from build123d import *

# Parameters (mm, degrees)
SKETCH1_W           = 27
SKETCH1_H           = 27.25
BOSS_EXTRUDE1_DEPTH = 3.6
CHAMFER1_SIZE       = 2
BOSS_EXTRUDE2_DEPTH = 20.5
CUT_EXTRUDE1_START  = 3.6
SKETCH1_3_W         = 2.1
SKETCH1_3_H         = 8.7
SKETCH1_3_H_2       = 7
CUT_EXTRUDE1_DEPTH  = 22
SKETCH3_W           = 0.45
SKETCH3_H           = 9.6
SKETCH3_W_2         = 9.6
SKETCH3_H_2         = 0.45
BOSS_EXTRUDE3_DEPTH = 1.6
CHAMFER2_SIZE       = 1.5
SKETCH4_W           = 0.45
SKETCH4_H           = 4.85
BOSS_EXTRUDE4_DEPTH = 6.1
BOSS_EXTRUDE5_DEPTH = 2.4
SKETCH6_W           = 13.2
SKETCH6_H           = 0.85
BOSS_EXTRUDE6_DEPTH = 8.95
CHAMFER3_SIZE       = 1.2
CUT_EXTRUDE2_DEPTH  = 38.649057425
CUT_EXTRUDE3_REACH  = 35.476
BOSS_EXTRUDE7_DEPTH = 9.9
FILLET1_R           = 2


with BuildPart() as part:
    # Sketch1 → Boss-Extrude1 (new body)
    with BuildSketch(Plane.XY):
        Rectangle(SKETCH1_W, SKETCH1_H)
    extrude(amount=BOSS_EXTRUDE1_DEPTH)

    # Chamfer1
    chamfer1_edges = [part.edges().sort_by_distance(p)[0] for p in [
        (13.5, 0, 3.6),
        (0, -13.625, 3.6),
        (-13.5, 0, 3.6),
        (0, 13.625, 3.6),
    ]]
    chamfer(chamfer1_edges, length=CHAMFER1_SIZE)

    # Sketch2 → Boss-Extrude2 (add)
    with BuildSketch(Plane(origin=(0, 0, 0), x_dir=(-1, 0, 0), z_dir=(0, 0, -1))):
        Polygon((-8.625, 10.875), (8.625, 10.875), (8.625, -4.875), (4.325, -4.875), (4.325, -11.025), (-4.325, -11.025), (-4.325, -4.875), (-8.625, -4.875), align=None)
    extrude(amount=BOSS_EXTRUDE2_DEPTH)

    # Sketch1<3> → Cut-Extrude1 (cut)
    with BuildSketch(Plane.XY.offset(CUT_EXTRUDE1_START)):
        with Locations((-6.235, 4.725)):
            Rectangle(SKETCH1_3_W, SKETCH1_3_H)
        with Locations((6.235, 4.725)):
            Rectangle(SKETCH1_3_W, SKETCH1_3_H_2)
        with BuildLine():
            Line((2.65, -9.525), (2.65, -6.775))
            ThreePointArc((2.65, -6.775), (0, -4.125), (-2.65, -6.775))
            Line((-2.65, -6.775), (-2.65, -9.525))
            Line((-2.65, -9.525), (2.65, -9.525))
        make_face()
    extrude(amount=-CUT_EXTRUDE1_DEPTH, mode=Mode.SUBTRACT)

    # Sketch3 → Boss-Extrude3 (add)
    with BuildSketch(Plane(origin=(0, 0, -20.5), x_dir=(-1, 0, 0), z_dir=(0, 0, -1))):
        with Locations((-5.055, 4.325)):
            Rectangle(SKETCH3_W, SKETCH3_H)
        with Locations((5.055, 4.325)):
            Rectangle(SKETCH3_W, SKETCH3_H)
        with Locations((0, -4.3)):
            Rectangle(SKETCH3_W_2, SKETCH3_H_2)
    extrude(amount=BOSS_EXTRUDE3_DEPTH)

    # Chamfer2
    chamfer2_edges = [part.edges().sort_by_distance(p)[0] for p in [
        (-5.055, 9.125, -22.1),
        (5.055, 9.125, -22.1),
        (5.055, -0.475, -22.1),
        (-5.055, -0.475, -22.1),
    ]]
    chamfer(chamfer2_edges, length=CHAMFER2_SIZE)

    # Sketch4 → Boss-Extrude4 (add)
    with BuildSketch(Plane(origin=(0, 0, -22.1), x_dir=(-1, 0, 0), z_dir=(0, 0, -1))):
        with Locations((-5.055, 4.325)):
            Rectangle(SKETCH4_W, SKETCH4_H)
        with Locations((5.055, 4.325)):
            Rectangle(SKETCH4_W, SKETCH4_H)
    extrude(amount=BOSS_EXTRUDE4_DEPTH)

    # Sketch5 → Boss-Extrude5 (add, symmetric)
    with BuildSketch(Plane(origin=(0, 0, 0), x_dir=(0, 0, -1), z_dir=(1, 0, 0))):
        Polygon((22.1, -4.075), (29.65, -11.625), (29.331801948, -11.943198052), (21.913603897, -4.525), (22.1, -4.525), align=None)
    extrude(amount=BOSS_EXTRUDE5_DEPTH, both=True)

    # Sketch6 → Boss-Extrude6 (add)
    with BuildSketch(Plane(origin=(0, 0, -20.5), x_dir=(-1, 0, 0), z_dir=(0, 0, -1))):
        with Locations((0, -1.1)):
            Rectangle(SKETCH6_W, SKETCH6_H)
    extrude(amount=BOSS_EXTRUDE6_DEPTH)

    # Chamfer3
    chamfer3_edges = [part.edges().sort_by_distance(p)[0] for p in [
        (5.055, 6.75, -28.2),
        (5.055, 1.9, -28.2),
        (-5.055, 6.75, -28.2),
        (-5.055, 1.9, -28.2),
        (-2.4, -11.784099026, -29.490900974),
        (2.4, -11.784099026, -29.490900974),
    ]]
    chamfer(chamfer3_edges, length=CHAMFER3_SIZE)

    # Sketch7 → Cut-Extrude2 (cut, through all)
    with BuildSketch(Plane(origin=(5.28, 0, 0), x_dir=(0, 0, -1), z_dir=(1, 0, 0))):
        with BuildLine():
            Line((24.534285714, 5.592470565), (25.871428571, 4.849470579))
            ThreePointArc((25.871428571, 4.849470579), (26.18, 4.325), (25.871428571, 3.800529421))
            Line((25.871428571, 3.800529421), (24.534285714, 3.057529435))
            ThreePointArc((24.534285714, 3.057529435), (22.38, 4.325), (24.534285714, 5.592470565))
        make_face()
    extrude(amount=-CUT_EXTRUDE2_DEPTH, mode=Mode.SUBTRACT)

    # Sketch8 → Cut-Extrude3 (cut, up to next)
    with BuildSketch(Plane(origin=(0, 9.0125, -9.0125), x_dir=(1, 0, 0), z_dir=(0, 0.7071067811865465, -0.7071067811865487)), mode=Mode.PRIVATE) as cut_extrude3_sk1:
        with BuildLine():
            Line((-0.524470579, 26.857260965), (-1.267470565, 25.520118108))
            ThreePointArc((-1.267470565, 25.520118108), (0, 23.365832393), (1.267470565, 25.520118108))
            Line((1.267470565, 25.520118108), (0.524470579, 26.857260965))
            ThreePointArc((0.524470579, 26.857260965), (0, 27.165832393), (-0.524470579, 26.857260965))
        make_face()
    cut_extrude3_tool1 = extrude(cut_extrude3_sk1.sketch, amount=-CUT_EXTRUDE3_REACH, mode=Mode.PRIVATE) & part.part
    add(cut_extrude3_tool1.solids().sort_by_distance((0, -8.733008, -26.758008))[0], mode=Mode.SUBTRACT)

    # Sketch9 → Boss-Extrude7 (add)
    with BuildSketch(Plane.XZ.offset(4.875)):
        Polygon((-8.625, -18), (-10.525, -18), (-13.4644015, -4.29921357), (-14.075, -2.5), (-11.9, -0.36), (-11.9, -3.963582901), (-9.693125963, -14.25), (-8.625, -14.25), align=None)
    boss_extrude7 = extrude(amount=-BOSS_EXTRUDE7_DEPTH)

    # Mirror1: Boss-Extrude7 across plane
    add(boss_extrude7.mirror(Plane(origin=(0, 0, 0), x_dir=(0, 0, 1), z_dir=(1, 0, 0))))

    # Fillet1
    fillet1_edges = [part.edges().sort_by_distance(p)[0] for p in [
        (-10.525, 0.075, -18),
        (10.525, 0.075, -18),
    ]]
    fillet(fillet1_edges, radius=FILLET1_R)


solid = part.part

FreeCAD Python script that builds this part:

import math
import FreeCAD as App
import Part
import Sketcher
Q = App.Units.Quantity


def edges_at(feature, points):
    """Names of the edges that pass closest to the given points."""
    edges = feature.Shape.Edges
    near = lambda p: min(range(len(edges)), key=lambda i: edges[i].distToShape(Part.Vertex(*p))[0])
    return sorted({f"Edge{near(p) + 1}" for p in points})


def add_polygon(sketch, points):
    """Adds a closed chain of lines whose ends are joined by coincident constraints."""
    first, n = sketch.GeometryCount, len(points)
    for a, b in zip(points, points[1:] + points[:1]):
        sketch.addGeometry(Part.LineSegment(App.Vector(*a, 0), App.Vector(*b, 0)), False)
    for i in range(n):
        sketch.addConstraint(Sketcher.Constraint("Coincident", first + i, 2, first + (i + 1) % n, 1))

doc = App.newDocument("Part")
body = doc.addObject("PartDesign::Body", "Body")

sketch1 = body.newObject("Sketcher::SketchObject", "Sketch")
sketch1.AttachmentSupport = (doc.getObject("XY_Plane"), [""])
sketch1.MapMode = "FlatFace"
add_polygon(sketch1, [(-13.5, 13.625), (-13.5, -13.625), (13.5, -13.625), (13.5, 13.625)])
sketch1.addConstraint([
    Sketcher.Constraint("Vertical", 0),
    Sketcher.Constraint("Horizontal", 1),
    Sketcher.Constraint("Vertical", 2),
    Sketcher.Constraint("Horizontal", 3),
    Sketcher.Constraint("Symmetric", 0, 2, 2, 2, -1, 1),
    Sketcher.Constraint("DistanceX", 1, 1, 1, 2, 27.0),
    Sketcher.Constraint("DistanceY", 0, 2, 0, 1, 27.25),
])
pad1 = body.newObject("PartDesign::Pad", "Pad")
pad1.Profile = sketch1
pad1.Length = 3.6
doc.recompute()

chamfer = body.newObject("PartDesign::Chamfer", "Chamfer")
chamfer.Base = (pad1, edges_at(pad1, [
    (13.5, 0, 3.6),
    (0, -13.625, 3.6),
    (-13.5, 0, 3.6),
    (0, 13.625, 3.6),
]))
chamfer.Size = 2

sketch2 = body.newObject("Sketcher::SketchObject", "Sketch001")
sketch2.AttachmentSupport = (doc.getObject("XY_Plane"), [""])
sketch2.MapMode = "FlatFace"
add_polygon(sketch2, [(-8.625, 10.875), (8.625, 10.875), (8.625, -4.875), (4.325, -4.875), (4.325, -11.025), (-4.325, -11.025), (-4.325, -4.875), (-8.625, -4.875)])
sketch2.addConstraint([
    Sketcher.Constraint("Horizontal", 0),
    Sketcher.Constraint("Vertical", 1),
    Sketcher.Constraint("Horizontal", 2),
    Sketcher.Constraint("Vertical", 3),
    Sketcher.Constraint("Horizontal", 4),
    Sketcher.Constraint("Vertical", 5),
    Sketcher.Constraint("Horizontal", 6),
    Sketcher.Constraint("Vertical", 7),
    Sketcher.Constraint("Symmetric", 2, 2, 5, 2, -2),
    Sketcher.Constraint("Equal", 2, 6),
    Sketcher.Constraint("DistanceX", 2, 2, 2, 1, 4.3),
    Sketcher.Constraint("DistanceX", 0, 1, 0, 2, 17.25),
    Sketcher.Constraint("DistanceY", 1, 2, 1, 1, 15.75),
    Sketcher.Constraint("DistanceY", 3, 2, 3, 1, 6.15),
    Sketcher.Constraint("DistanceY", -1, 1, 0, 2, 10.875),
])
pad2 = body.newObject("PartDesign::Pad", "Pad001")
pad2.Profile = sketch2
pad2.Length = 20.5
pad2.Reversed = True

sketch3 = body.newObject("Sketcher::SketchObject", "Sketch002")
sketch3.AttachmentSupport = (doc.getObject("XY_Plane"), [""])
sketch3.MapMode = "FlatFace"
sketch3.AttachmentOffset = App.Placement(App.Vector(0, 0, 3.6), App.Rotation())
add_polygon(sketch3, [(-7.285, 9.075), (-7.285, 0.375), (-5.185, 0.375), (-5.185, 9.075)])
add_polygon(sketch3, [(5.185, 8.225), (5.185, 1.225), (7.285, 1.225), (7.285, 8.225)])
sketch3.addGeometry(Part.LineSegment(App.Vector(2.65, -9.525, 0), App.Vector(2.65, -6.775, 0)), False)
sketch3.addGeometry(Part.ArcOfCircle(Part.Circle(App.Vector(0, -6.775, 0), App.Vector(0, 0, 1), 2.65), math.radians(0), math.radians(180)), False)
sketch3.addGeometry(Part.LineSegment(App.Vector(-2.65, -6.775, 0), App.Vector(-2.65, -9.525, 0)), False)
sketch3.addGeometry(Part.LineSegment(App.Vector(-2.65, -9.525, 0), App.Vector(2.65, -9.525, 0)), False)
sketch3.addConstraint([
    Sketcher.Constraint("Tangent", 8, 2, 9, 1),
    Sketcher.Constraint("Tangent", 9, 2, 10, 1),
    Sketcher.Constraint("Coincident", 10, 2, 11, 1),
    Sketcher.Constraint("Coincident", 11, 2, 8, 1),
    Sketcher.Constraint("Vertical", 0),
    Sketcher.Constraint("Horizontal", 1),
    Sketcher.Constraint("Vertical", 2),
    Sketcher.Constraint("Horizontal", 3),
    Sketcher.Constraint("Vertical", 4),
    Sketcher.Constraint("Horizontal", 5),
    Sketcher.Constraint("Vertical", 6),
    Sketcher.Constraint("Horizontal", 7),
    Sketcher.Constraint("Vertical", 8),
    Sketcher.Constraint("Vertical", 10),
    Sketcher.Constraint("Horizontal", 11),
    Sketcher.Constraint("PointOnObject", 9, 3, -2),
    Sketcher.Constraint("Equal", 3, 5),
    Sketcher.Constraint("DistanceY", 4, 2, 4, 1, 7.0),
    Sketcher.Constraint("Radius", 9, 2.65),
    Sketcher.Constraint("DistanceX", 1, 1, 1, 2, 2.1),
    Sketcher.Constraint("DistanceY", 0, 2, 0, 1, 8.7),
    Sketcher.Constraint("DistanceY", 9, 3, 4, 2, 8.0),
    Sketcher.Constraint("DistanceY", 8, 1, 8, 2, 2.75),
    Sketcher.Constraint("DistanceY", 10, 2, 1, 2, 9.9),
    Sketcher.Constraint("DistanceX", 1, 2, 4, 2, 10.37),
    Sketcher.Constraint("DistanceY", 9, 3, -1, 1, 6.775),
    Sketcher.Constraint("DistanceX", 0, 2, -1, 1, 7.285),
])
pocket1 = body.newObject("PartDesign::Pocket", "Pocket")
pocket1.Profile = sketch3
pocket1.Length = 22

sketch4 = body.newObject("Sketcher::SketchObject", "Sketch003")
sketch4.AttachmentSupport = (doc.getObject("XY_Plane"), [""])
sketch4.MapMode = "FlatFace"
sketch4.AttachmentOffset = App.Placement(App.Vector(0, 0, -20.5), App.Rotation())
add_polygon(sketch4, [(5.28, 9.125), (5.28, -0.475), (4.83, -0.475), (4.83, 9.125)])
add_polygon(sketch4, [(-4.83, 9.125), (-4.83, -0.475), (-5.28, -0.475), (-5.28, 9.125)])
add_polygon(sketch4, [(4.8, -4.075), (4.8, -4.525), (-4.8, -4.525), (-4.8, -4.075)])
sketch4.addConstraint([
    Sketcher.Constraint("Vertical", 0),
    Sketcher.Constraint("Horizontal", 1),
    Sketcher.Constraint("Vertical", 2),
    Sketcher.Constraint("Horizontal", 3),
    Sketcher.Constraint("Vertical", 4),
    Sketcher.Constraint("Horizontal", 5),
    Sketcher.Constraint("Vertical", 6),
    Sketcher.Constraint("Horizontal", 7),
    Sketcher.Constraint("Vertical", 8),
    Sketcher.Constraint("Horizontal", 9),
    Sketcher.Constraint("Vertical", 10),
    Sketcher.Constraint("Horizontal", 11),
    Sketcher.Constraint("Symmetric", 1, 2, 4, 2, -2),
    Sketcher.Constraint("Symmetric", 3, 2, 6, 2, -2),
    Sketcher.Constraint("Equal", 11, 0),
    Sketcher.Constraint("Equal", 7, 8),
    Sketcher.Constraint("DistanceX", 9, 2, 9, 1, 9.6),
    Sketcher.Constraint("DistanceX", 1, 2, 1, 1, 0.45),
    Sketcher.Constraint("DistanceX", -1, 1, 8, 2, 4.8),
    Sketcher.Constraint("DistanceY", 10, 2, 4, 2, 3.6),
    Sketcher.Constraint("DistanceX", -1, 1, 0, 2, 5.28),
    Sketcher.Constraint("DistanceY", 0, 2, -1, 1, 0.475),
])
pad3 = body.newObject("PartDesign::Pad", "Pad002")
pad3.Profile = sketch4
pad3.Length = 1.6
pad3.Reversed = True
doc.recompute()

chamfer2 = body.newObject("PartDesign::Chamfer", "Chamfer001")
chamfer2.Base = (pad3, edges_at(pad3, [
    (-5.055, 9.125, -22.1),
    (5.055, 9.125, -22.1),
    (5.055, -0.475, -22.1),
    (-5.055, -0.475, -22.1),
]))
chamfer2.Size = 1.5

sketch5 = body.newObject("Sketcher::SketchObject", "Sketch004")
sketch5.AttachmentSupport = (doc.getObject("XY_Plane"), [""])
sketch5.MapMode = "FlatFace"
sketch5.AttachmentOffset = App.Placement(App.Vector(0, 0, -22.1), App.Rotation())
add_polygon(sketch5, [(5.28, 6.75), (5.28, 1.9), (4.83, 1.9), (4.83, 6.75)])
add_polygon(sketch5, [(-4.83, 6.75), (-4.83, 1.9), (-5.28, 1.9), (-5.28, 6.75)])
sketch5.addConstraint([
    Sketcher.Constraint("Vertical", 0),
    Sketcher.Constraint("Horizontal", 1),
    Sketcher.Constraint("Vertical", 2),
    Sketcher.Constraint("Horizontal", 3),
    Sketcher.Constraint("Vertical", 4),
    Sketcher.Constraint("Horizontal", 5),
    Sketcher.Constraint("Vertical", 6),
    Sketcher.Constraint("Horizontal", 7),
    Sketcher.Constraint("Symmetric", 1, 2, 4, 2, -2),
    Sketcher.Constraint("Symmetric", 3, 2, 6, 2, -2),
    Sketcher.Constraint("DistanceX", 1, 2, 1, 1, 0.45),
    Sketcher.Constraint("DistanceY", 0, 2, 0, 1, 4.85),
    Sketcher.Constraint("DistanceY", -1, 1, 0, 2, 1.9),
    Sketcher.Constraint("DistanceX", -1, 1, 0, 2, 5.28),
])
pad4 = body.newObject("PartDesign::Pad", "Pad003")
pad4.Profile = sketch5
pad4.Length = 6.1
pad4.Reversed = True

sketch6 = body.newObject("Sketcher::SketchObject", "Sketch005")
sketch6.AttachmentSupport = (doc.getObject("YZ_Plane"), [""])
sketch6.MapMode = "FlatFace"
add_polygon(sketch6, [(-11.625, -29.65), (-4.075, -22.1), (-4.525, -22.1), (-4.525, -21.913604), (-11.943198, -29.331802)])
sketch6.addConstraint([
    Sketcher.Constraint("Horizontal", 1),
    Sketcher.Constraint("Vertical", 2),
    Sketcher.Constraint("Parallel", 0, 3),
    Sketcher.Constraint("Perpendicular", 3, 4),
    Sketcher.Constraint("Angle", 0, Q("45 deg")),
    Sketcher.Constraint("DistanceX", 1, 2, 1, 1, 0.45),
    Sketcher.Constraint("DistanceY", 0, 2, -1, 1, 22.1),
    Sketcher.Constraint("DistanceX", 4, 2, 1, 2, 7.1),
    Sketcher.Constraint("Distance", 4, 0.45),
    Sketcher.Constraint("DistanceX", 0, 2, -1, 1, 4.075),
])
pad5 = body.newObject("PartDesign::Pad", "Pad004")
pad5.Profile = sketch6
pad5.Length = 4.8
pad5.Midplane = True

sketch7 = body.newObject("Sketcher::SketchObject", "Sketch006")
sketch7.AttachmentSupport = (doc.getObject("XY_Plane"), [""])
sketch7.MapMode = "FlatFace"
sketch7.AttachmentOffset = App.Placement(App.Vector(0, 0, -20.5), App.Rotation())
add_polygon(sketch7, [(6.6, -0.675), (6.6, -1.525), (-6.6, -1.525), (-6.6, -0.675)])
sketch7.addConstraint([
    Sketcher.Constraint("Vertical", 0),
    Sketcher.Constraint("Horizontal", 1),
    Sketcher.Constraint("Vertical", 2),
    Sketcher.Constraint("Horizontal", 3),
    Sketcher.Constraint("DistanceX", 1, 2, 1, 1, 13.2),
    Sketcher.Constraint("DistanceY", 0, 2, 0, 1, 0.85),
    Sketcher.Constraint("DistanceX", -1, 1, 0, 2, 6.6),
    Sketcher.Constraint("DistanceY", 0, 2, -1, 1, 1.525),
])
pad6 = body.newObject("PartDesign::Pad", "Pad005")
pad6.Profile = sketch7
pad6.Length = 8.95
pad6.Reversed = True
doc.recompute()

chamfer3 = body.newObject("PartDesign::Chamfer", "Chamfer002")
chamfer3.Base = (pad6, edges_at(pad6, [
    (5.055, 6.75, -28.2),
    (5.055, 1.9, -28.2),
    (-5.055, 6.75, -28.2),
    (-5.055, 1.9, -28.2),
    (-2.4, -11.784, -29.491),
    (2.4, -11.784, -29.491),
]))
chamfer3.Size = 1.2

sketch8 = body.newObject("Sketcher::SketchObject", "Sketch007")
sketch8.AttachmentSupport = (doc.getObject("YZ_Plane"), [""])
sketch8.MapMode = "FlatFace"
sketch8.AttachmentOffset = App.Placement(App.Vector(0, 0, 5.28), App.Rotation())
sketch8.addGeometry([
    Part.LineSegment(App.Vector(4.849471, -25.871429, 0), App.Vector(5.592471, -24.534286, 0)),
    Part.ArcOfCircle(Part.Circle(App.Vector(4.325, -23.83, 0), App.Vector(0, 0, 1), 1.45), math.radians(-29.059281), math.radians(209.059281)),
    Part.LineSegment(App.Vector(3.057529, -24.534286, 0), App.Vector(3.800529, -25.871429, 0)),
    Part.ArcOfCircle(Part.Circle(App.Vector(4.325, -25.58, 0), App.Vector(0, 0, 1), 0.6), math.radians(-150.940719), math.radians(-29.059281)),
], False)
sketch8.addConstraint([
    Sketcher.Constraint("Tangent", 0, 2, 1, 1),
    Sketcher.Constraint("Tangent", 1, 2, 2, 1),
    Sketcher.Constraint("Tangent", 2, 2, 3, 1),
    Sketcher.Constraint("Tangent", 3, 2, 0, 1),
    Sketcher.Constraint("Horizontal", 0, 2, 1, 2),
    Sketcher.Constraint("Radius", 3, 0.6),
    Sketcher.Constraint("Radius", 1, 1.45),
    Sketcher.Constraint("DistanceY", 1, 3, -1, 1, 23.83),
    Sketcher.Constraint("DistanceY", 3, 3, -1, 1, 25.58),
    Sketcher.Constraint("DistanceX", -1, 1, 1, 3, 4.325),
])
pocket2 = body.newObject("PartDesign::Pocket", "Pocket001")
pocket2.Profile = sketch8
pocket2.Type = "ThroughAll"

sketch9 = body.newObject("Sketcher::SketchObject", "Sketch008")
sketch9.Placement = App.Placement(App.Vector(0, 9.0125, -9.0125), App.Rotation(App.Vector(1, 0, 0), App.Vector(0, -0.707106781, -0.707106781), App.Vector(0, 0.707106781, -0.707106781), "ZXY"))
sketch9.addGeometry([
    Part.LineSegment(App.Vector(-0.524471, 26.857261, 0), App.Vector(-1.267471, 25.520118, 0)),
    Part.ArcOfCircle(Part.Circle(App.Vector(0, 24.815832, 0), App.Vector(0, 0, 1), 1.45), math.radians(150.940719), math.radians(389.059281)),
    Part.LineSegment(App.Vector(1.267471, 25.520118, 0), App.Vector(0.524471, 26.857261, 0)),
    Part.ArcOfCircle(Part.Circle(App.Vector(0, 26.565832, 0), App.Vector(0, 0, 1), 0.6), math.radians(29.059281), math.radians(150.940719)),
], False)
sketch9.addConstraint([
    Sketcher.Constraint("Tangent", 0, 2, 1, 1),
    Sketcher.Constraint("Tangent", 1, 2, 2, 1),
    Sketcher.Constraint("Tangent", 2, 2, 3, 1),
    Sketcher.Constraint("Tangent", 3, 2, 0, 1),
    Sketcher.Constraint("Symmetric", 0, 2, 1, 2, -2),
    Sketcher.Constraint("Radius", 3, 0.6),
    Sketcher.Constraint("Radius", 1, 1.45),
    Sketcher.Constraint("DistanceY", 1, 3, 3, 3, 1.75),
    Sketcher.Constraint("DistanceY", -1, 1, 0, 2, 25.520118),
])
pocket3 = body.newObject("PartDesign::Pocket", "Pocket002")
pocket3.Profile = sketch9
pocket3.Type = "UpToFirst"

sketch10 = body.newObject("Sketcher::SketchObject", "Sketch009")
sketch10.AttachmentSupport = (doc.getObject("XZ_Plane"), [""])
sketch10.MapMode = "FlatFace"
sketch10.AttachmentOffset = App.Placement(App.Vector(0, 0, 4.875), App.Rotation())
add_polygon(sketch10, [(-10.525, -18), (-8.625, -18), (-8.625, -14.25), (-9.693126, -14.25), (-11.9, -3.963583), (-11.9, -0.36), (-14.075, -2.5), (-13.464401, -4.299214)])
sketch10.addConstraint([
    Sketcher.Constraint("Horizontal", 0),
    Sketcher.Constraint("Vertical", 1),
    Sketcher.Constraint("Horizontal", 2),
    Sketcher.Constraint("Vertical", 4),
    Sketcher.Constraint("Parallel", 3, 7),
    Sketcher.Constraint("DistanceX", 0, 1, 0, 2, 1.9),
    Sketcher.Constraint("DistanceY", 0, 2, -1, 1, 18.0),
    Sketcher.Constraint("Distance", 6, 1.9),
    Sketcher.Constraint("DistanceY", 1, 1, 1, 2, 3.75),
    Sketcher.Constraint("DistanceX", 3, 2, -1, 1, 11.9),
    Sketcher.Constraint("DistanceY", 5, 2, -1, 1, 2.5),
    Sketcher.Constraint("DistanceY", 4, 2, -1, 1, 0.36),
    Sketcher.Constraint("DistanceX", 5, 2, 1, 2, 5.45),
    Sketcher.Constraint("DistanceX", 0, 2, -1, 1, 8.625),
    Sketcher.Constraint("DistanceX", 6, 2, -1, 1, 13.464401),
    Sketcher.Constraint("Distance", 3, 10.520488),
])
pad7 = body.newObject("PartDesign::Pad", "Pad006")
pad7.Profile = sketch10
pad7.Length = 9.9
pad7.Reversed = True
doc.recompute()

mirrored = body.newObject("PartDesign::Mirrored", "Mirrored")
mirrored.Originals = [pad7]
mirrored.MirrorPlane = (doc.getObject("YZ_Plane"), [""])
body.Tip = mirrored
doc.recompute()

fillet = body.newObject("PartDesign::Fillet", "Fillet")
fillet.Base = (mirrored, edges_at(mirrored, [(-10.525, 0.075, -18), (10.525, 0.075, -18)]))
fillet.Radius = 2

doc.recompute()
